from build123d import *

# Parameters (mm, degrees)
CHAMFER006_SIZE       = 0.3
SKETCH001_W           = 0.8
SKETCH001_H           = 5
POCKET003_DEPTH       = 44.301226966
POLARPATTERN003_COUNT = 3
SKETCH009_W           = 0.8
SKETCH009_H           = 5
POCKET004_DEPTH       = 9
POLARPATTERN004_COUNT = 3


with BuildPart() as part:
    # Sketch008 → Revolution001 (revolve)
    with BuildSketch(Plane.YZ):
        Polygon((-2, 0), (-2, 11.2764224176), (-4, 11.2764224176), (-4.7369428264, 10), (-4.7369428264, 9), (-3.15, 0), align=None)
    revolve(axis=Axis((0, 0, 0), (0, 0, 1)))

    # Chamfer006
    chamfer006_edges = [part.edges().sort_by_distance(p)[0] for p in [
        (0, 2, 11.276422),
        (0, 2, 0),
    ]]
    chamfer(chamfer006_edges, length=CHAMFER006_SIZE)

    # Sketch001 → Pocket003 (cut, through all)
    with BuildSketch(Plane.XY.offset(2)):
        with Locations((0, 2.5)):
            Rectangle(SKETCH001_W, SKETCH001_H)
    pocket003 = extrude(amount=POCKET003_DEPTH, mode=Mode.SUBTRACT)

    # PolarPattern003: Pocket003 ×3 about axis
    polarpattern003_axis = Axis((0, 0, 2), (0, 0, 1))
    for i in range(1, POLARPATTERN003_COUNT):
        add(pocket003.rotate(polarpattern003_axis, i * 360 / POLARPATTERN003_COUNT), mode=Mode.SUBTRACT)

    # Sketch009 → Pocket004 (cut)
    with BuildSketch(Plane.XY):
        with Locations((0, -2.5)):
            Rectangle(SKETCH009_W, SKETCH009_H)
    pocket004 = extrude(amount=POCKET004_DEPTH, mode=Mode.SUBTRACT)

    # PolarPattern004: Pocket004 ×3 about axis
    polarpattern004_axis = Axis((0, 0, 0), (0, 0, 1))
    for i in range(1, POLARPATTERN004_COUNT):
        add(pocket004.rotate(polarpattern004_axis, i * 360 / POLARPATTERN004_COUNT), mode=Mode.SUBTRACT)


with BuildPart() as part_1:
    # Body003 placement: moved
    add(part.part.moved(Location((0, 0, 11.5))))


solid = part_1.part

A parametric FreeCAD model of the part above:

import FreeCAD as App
import Part
import Sketcher

V = App.Vector
Q = App.Units.Quantity


def edges_at(feature, points):
    """Names of the edges that pass closest to the given points."""
    edges = feature.Shape.Edges
    near = lambda p: min(range(len(edges)), key=lambda i: edges[i].distToShape(Part.Vertex(*p))[0])
    return sorted({f"Edge{near(p) + 1}" for p in points})

doc = App.newDocument("Part")
body = doc.addObject("PartDesign::Body", "Body")

# Sketch on YZ plane
sketch1 = body.newObject("Sketcher::SketchObject", "Sketch")
sketch1.AttachmentSupport = (doc.getObject("YZ_Plane"), [""])
sketch1.MapMode = "FlatFace"
sketch1.addGeometry(Part.LineSegment(V(-2, 0, 0), V(-2, 11.3, 0)), False)
sketch1.addGeometry(Part.LineSegment(V(-2, 11.3, 0), V(-4, 11.3, 0)), False)
sketch1.addGeometry(Part.LineSegment(V(-4, 11.3, 0), V(-4.7, 10, 0)), False)
sketch1.addGeometry(Part.LineSegment(V(-4.7, 10, 0), V(-4.7, 9, 0)), False)
sketch1.addGeometry(Part.LineSegment(V(-4.7, 9, 0), V(-3.1, 0, 0)), False)
sketch1.addGeometry(Part.LineSegment(V(-3.1, 0, 0), V(-2, 0, 0)), False)
sketch1.addConstraint(Sketcher.Constraint("Coincident", 0, 2, 1, 1))
sketch1.addConstraint(Sketcher.Constraint("Coincident", 1, 2, 2, 1))
sketch1.addConstraint(Sketcher.Constraint("Coincident", 2, 2, 3, 1))
sketch1.addConstraint(Sketcher.Constraint("Coincident", 3, 2, 4, 1))
sketch1.addConstraint(Sketcher.Constraint("Coincident", 4, 2, 5, 1))
sketch1.addConstraint(Sketcher.Constraint("Coincident", 5, 2, 0, 1))
sketch1.addConstraint(Sketcher.Constraint("Vertical", 0))
sketch1.addConstraint(Sketcher.Constraint("Horizontal", 1))
sketch1.addConstraint(Sketcher.Constraint("Vertical", 3))
sketch1.addConstraint(Sketcher.Constraint("Horizontal", 5))
sketch1.addConstraint(Sketcher.Constraint("PointOnObject", 4, 2, -1))
sketch1.addConstraint(Sketcher.Constraint("DistanceX", 1, 2, 1, 1, Q("2 mm")))
sketch1.addConstraint(Sketcher.Constraint("DistanceY", 3, 2, 3, 1, Q("1 mm")))
sketch1.addConstraint(Sketcher.Constraint("Angle", 2, Q("-120 deg")))
sketch1.addConstraint(Sketcher.Constraint("Angle", 4, Q("-80 deg")))
sketch1.addConstraint(Sketcher.Constraint("DistanceX", 0, 2, -1, 1, Q("2 mm")))
sketch1.addConstraint(Sketcher.Constraint("DistanceY", -1, 1, 2, 2, Q("10 mm")))
sketch1.addConstraint(Sketcher.Constraint("DistanceX", 5, 1, 5, 2, Q("1.15 mm")))
revolution = body.newObject("PartDesign::Revolution", "Revolution")
revolution.Profile = sketch1
revolution.ReferenceAxis = (sketch1, ["V_Axis"])
revolution.Angle = 360
doc.recompute()

chamfer = body.newObject("PartDesign::Chamfer", "Chamfer")
chamfer.Base = (revolution, edges_at(revolution, [(0, 2, 11.276), (0, 2, 0)]))
chamfer.Size = 0.3

# Sketch on XY plane
sketch2 = body.newObject("Sketcher::SketchObject", "Sketch001")
sketch2.AttachmentSupport = (doc.getObject("XY_Plane"), [""])
sketch2.MapMode = "FlatFace"
sketch2.AttachmentOffset = App.Placement(V(0, 0, 2), App.Rotation())
sketch2.addGeometry(Part.LineSegment(V(-0.4, 5, 0), V(-0.4, 0, 0)), False)
sketch2.addGeometry(Part.LineSegment(V(-0.4, 0, 0), V(0.4, 0, 0)), False)
sketch2.addGeometry(Part.LineSegment(V(0.4, 0, 0), V(0.4, 5, 0)), False)
sketch2.addGeometry(Part.LineSegment(V(0.4, 5, 0), V(-0.4, 5, 0)), False)
sketch2.addConstraint(Sketcher.Constraint("Coincident", 0, 2, 1, 1))
sketch2.addConstraint(Sketcher.Constraint("Coincident", 1, 2, 2, 1))
sketch2.addConstraint(Sketcher.Constraint("Coincident", 2, 2, 3, 1))
sketch2.addConstraint(Sketcher.Constraint("Coincident", 3, 2, 0, 1))
sketch2.addConstraint(Sketcher.Constraint("Vertical", 0))
sketch2.addConstraint(Sketcher.Constraint("Horizontal", 1))
sketch2.addConstraint(Sketcher.Constraint("Vertical", 2))
sketch2.addConstraint(Sketcher.Constraint("Horizontal", 3))
sketch2.addConstraint(Sketcher.Constraint("Symmetric", 0, 2, 1, 2, -1, 1))
sketch2.addConstraint(Sketcher.Constraint("DistanceY", 0, 2, 0, 1, Q("5 mm")))
sketch2.addConstraint(Sketcher.Constraint("DistanceX", 1, 1, 1, 2, Q("0.8 mm")))
pocket1 = body.newObject("PartDesign::Pocket", "Pocket")
pocket1.Profile = sketch2
pocket1.Type = "ThroughAll"
pocket1.Reversed = True
doc.recompute()

polarpattern = body.newObject("PartDesign::PolarPattern", "PolarPattern")
polarpattern.Originals = [pocket1]
polarpattern.Axis = (doc.getObject("Z_Axis"), [""])
polarpattern.Angle = 360
polarpattern.Occurrences = 3
body.Tip = polarpattern

# Sketch on XY plane
sketch3 = body.newObject("Sketcher::SketchObject", "Sketch002")
sketch3.AttachmentSupport = (doc.getObject("XY_Plane"), [""])
sketch3.MapMode = "FlatFace"
sketch3.addGeometry(Part.LineSegment(V(-0.4, 0, 0), V(-0.4, -5, 0)), False)
sketch3.addGeometry(Part.LineSegment(V(-0.4, -5, 0), V(0.4, -5, 0)), False)
sketch3.addGeometry(Part.LineSegment(V(0.4, -5, 0), V(0.4, 0, 0)), False)
sketch3.addGeometry(Part.LineSegment(V(0.4, 0, 0), V(-0.4, 0, 0)), False)
sketch3.addConstraint(Sketcher.Constraint("Coincident", 0, 2, 1, 1))
sketch3.addConstraint(Sketcher.Constraint("Coincident", 1, 2, 2, 1))
sketch3.addConstraint(Sketcher.Constraint("Coincident", 2, 2, 3, 1))
sketch3.addConstraint(Sketcher.Constraint("Coincident", 3, 2, 0, 1))
sketch3.addConstraint(Sketcher.Constraint("Vertical", 0))
sketch3.addConstraint(Sketcher.Constraint("Horizontal", 1))
sketch3.addConstraint(Sketcher.Constraint("Vertical", 2))
sketch3.addConstraint(Sketcher.Constraint("Horizontal", 3))
sketch3.addConstraint(Sketcher.Constraint("Symmetric", 2, 2, 3, 2, -1, 1))
sketch3.addConstraint(Sketcher.Constraint("DistanceY", 0, 2, 0, 1, Q("5 mm")))
sketch3.addConstraint(Sketcher.Constraint("DistanceX", 1, 1, 1, 2, Q("0.8 mm")))
pocket2 = body.newObject("PartDesign::Pocket", "Pocket001")
pocket2.Profile = sketch3
pocket2.Length = 9
pocket2.Reversed = True
doc.recompute()

polarpattern2 = body.newObject("PartDesign::PolarPattern", "PolarPattern001")
polarpattern2.Originals = [pocket2]
polarpattern2.Axis = (doc.getObject("Z_Axis"), [""])
polarpattern2.Angle = 360
polarpattern2.Occurrences = 3
body.Tip = polarpattern2
body2 = doc.addObject("PartDesign::Body", "Body001")
doc.recompute()

body.Placement = App.Placement(V(0, 0, 11.5), App.Rotation(V(0, 0, 1), 0))
boolean = body2.newObject("PartDesign::Boolean", "Boolean")
boolean.Type = "Fuse"
boolean.addObjects([body])

doc.recompute()
